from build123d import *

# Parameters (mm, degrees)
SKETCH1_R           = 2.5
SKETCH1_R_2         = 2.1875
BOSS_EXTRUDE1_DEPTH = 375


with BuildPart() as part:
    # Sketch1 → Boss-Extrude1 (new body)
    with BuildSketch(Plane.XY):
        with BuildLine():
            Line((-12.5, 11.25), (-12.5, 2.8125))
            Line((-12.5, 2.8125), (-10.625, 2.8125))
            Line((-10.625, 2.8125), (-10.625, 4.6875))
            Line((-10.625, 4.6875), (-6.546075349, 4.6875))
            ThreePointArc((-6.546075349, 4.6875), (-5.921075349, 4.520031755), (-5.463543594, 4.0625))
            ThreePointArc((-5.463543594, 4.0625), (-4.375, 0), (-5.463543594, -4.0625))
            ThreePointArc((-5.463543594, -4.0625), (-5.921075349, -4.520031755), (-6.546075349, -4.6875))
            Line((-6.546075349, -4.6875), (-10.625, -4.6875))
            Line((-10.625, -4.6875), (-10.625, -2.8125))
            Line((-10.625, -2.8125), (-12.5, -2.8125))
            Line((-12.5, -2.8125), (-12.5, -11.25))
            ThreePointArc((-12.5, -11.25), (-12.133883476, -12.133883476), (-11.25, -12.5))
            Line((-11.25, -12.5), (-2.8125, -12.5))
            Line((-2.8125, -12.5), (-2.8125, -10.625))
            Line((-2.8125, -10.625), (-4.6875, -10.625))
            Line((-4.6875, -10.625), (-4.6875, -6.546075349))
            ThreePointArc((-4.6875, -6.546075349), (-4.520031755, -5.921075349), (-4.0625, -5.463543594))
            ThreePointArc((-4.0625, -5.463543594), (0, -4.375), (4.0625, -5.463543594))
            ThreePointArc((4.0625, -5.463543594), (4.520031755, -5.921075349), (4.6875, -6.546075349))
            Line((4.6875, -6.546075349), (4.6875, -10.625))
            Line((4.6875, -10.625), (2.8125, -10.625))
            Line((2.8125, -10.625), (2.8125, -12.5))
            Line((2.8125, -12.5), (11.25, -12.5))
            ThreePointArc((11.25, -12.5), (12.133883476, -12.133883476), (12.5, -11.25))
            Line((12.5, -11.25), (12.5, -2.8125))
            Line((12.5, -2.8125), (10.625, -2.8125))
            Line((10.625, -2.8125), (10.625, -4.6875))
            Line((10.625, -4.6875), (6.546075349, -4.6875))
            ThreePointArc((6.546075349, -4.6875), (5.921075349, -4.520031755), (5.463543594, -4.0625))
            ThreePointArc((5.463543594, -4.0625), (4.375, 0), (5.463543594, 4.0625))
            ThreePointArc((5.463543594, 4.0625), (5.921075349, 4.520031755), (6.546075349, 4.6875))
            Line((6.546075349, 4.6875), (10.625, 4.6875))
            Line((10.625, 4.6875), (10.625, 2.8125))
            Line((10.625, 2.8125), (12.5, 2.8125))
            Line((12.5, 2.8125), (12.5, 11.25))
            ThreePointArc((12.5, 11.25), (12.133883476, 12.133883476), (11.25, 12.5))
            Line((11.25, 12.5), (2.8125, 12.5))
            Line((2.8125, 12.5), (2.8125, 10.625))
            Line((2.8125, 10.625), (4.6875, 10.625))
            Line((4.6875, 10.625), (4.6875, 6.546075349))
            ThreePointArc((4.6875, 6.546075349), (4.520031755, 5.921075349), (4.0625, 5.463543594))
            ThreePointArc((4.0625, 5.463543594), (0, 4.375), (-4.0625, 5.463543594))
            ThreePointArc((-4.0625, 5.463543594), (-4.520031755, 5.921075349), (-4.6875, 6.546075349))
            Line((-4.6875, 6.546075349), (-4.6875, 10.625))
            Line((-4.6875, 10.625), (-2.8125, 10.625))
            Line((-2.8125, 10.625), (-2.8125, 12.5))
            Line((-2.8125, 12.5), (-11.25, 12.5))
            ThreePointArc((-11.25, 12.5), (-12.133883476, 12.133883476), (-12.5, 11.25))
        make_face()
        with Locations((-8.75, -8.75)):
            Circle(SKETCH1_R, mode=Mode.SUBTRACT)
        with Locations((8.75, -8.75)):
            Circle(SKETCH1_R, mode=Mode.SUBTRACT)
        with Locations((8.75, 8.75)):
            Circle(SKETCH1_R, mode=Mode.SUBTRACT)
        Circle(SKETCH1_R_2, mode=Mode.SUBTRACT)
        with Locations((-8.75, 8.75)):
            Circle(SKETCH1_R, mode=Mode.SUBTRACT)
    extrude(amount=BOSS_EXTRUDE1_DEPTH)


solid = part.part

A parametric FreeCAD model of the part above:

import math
import FreeCAD as App
import Part
import Sketcher

doc = App.newDocument("Part")
body = doc.addObject("PartDesign::Body", "Body")

sketch1 = body.newObject("Sketcher::SketchObject", "Sketch")
sketch1.AttachmentSupport = (doc.getObject("XY_Plane"), [""])
sketch1.MapMode = "FlatFace"
sketch1.addGeometry([
    Part.LineSegment(App.Vector(-12.5, 11.25, 0), App.Vector(-12.5, 2.8125, 0)),
    Part.LineSegment(App.Vector(-12.5, 2.8125, 0), App.Vector(-10.625, 2.8125, 0)),
    Part.LineSegment(App.Vector(-10.625, 2.8125, 0), App.Vector(-10.625, 4.6875, 0)),
    Part.LineSegment(App.Vector(-10.625, 4.6875, 0), App.Vector(-6.546075, 4.6875, 0)),
    Part.ArcOfCircle(Part.Circle(App.Vector(-6.546075, 3.4375, 0), App.Vector(0, 0, 1), 1.25), math.radians(30), math.radians(90)),
    Part.ArcOfCircle(Part.Circle(App.Vector(-12.5, 0, 0), App.Vector(0, 0, 1), 8.125), math.radians(-30), math.radians(30)),
    Part.ArcOfCircle(Part.Circle(App.Vector(-6.546075, -3.4375, 0), App.Vector(0, 0, 1), 1.25), math.radians(-90), math.radians(-30)),
    Part.LineSegment(App.Vector(-6.546075, -4.6875, 0), App.Vector(-10.625, -4.6875, 0)),
    Part.LineSegment(App.Vector(-10.625, -4.6875, 0), App.Vector(-10.625, -2.8125, 0)),
    Part.LineSegment(App.Vector(-10.625, -2.8125, 0), App.Vector(-12.5, -2.8125, 0)),
    Part.LineSegment(App.Vector(-12.5, -2.8125, 0), App.Vector(-12.5, -11.25, 0)),
    Part.ArcOfCircle(Part.Circle(App.Vector(-11.25, -11.25, 0), App.Vector(0, 0, 1), 1.25), math.radians(-180), math.radians(-90)),
    Part.LineSegment(App.Vector(-11.25, -12.5, 0), App.Vector(-2.8125, -12.5, 0)),
    Part.LineSegment(App.Vector(-2.8125, -12.5, 0), App.Vector(-2.8125, -10.625, 0)),
    Part.LineSegment(App.Vector(-2.8125, -10.625, 0), App.Vector(-4.6875, -10.625, 0)),
    Part.LineSegment(App.Vector(-4.6875, -10.625, 0), App.Vector(-4.6875, -6.546075, 0)),
    Part.ArcOfCircle(Part.Circle(App.Vector(-3.4375, -6.546075, 0), App.Vector(0, 0, 1), 1.25), math.radians(120), math.radians(180)),
    Part.ArcOfCircle(Part.Circle(App.Vector(0, -12.5, 0), App.Vector(0, 0, 1), 8.125), math.radians(60), math.radians(120)),
    Part.ArcOfCircle(Part.Circle(App.Vector(3.4375, -6.546075, 0), App.Vector(0, 0, 1), 1.25), math.radians(0), math.radians(60)),
    Part.LineSegment(App.Vector(4.6875, -6.546075, 0), App.Vector(4.6875, -10.625, 0)),
    Part.LineSegment(App.Vector(4.6875, -10.625, 0), App.Vector(2.8125, -10.625, 0)),
    Part.LineSegment(App.Vector(2.8125, -10.625, 0), App.Vector(2.8125, -12.5, 0)),
    Part.LineSegment(App.Vector(2.8125, -12.5, 0), App.Vector(11.25, -12.5, 0)),
    Part.ArcOfCircle(Part.Circle(App.Vector(11.25, -11.25, 0), App.Vector(0, 0, 1), 1.25), math.radians(-90), math.radians(0)),
    Part.LineSegment(App.Vector(12.5, -11.25, 0), App.Vector(12.5, -2.8125, 0)),
    Part.LineSegment(App.Vector(12.5, -2.8125, 0), App.Vector(10.625, -2.8125, 0)),
    Part.LineSegment(App.Vector(10.625, -2.8125, 0), App.Vector(10.625, -4.6875, 0)),
    Part.LineSegment(App.Vector(10.625, -4.6875, 0), App.Vector(6.546075, -4.6875, 0)),
    Part.ArcOfCircle(Part.Circle(App.Vector(6.546075, -3.4375, 0), App.Vector(0, 0, 1), 1.25), math.radians(-150), math.radians(-90)),
    Part.ArcOfCircle(Part.Circle(App.Vector(12.5, 0, 0), App.Vector(0, 0, 1), 8.125), math.radians(150), math.radians(210)),
    Part.ArcOfCircle(Part.Circle(App.Vector(6.546075, 3.4375, 0), App.Vector(0, 0, 1), 1.25), math.radians(90), math.radians(150)),
    Part.LineSegment(App.Vector(6.546075, 4.6875, 0), App.Vector(10.625, 4.6875, 0)),
    Part.LineSegment(App.Vector(10.625, 4.6875, 0), App.Vector(10.625, 2.8125, 0)),
    Part.LineSegment(App.Vector(10.625, 2.8125, 0), App.Vector(12.5, 2.8125, 0)),
    Part.LineSegment(App.Vector(12.5, 2.8125, 0), App.Vector(12.5, 11.25, 0)),
    Part.ArcOfCircle(Part.Circle(App.Vector(11.25, 11.25, 0), App.Vector(0, 0, 1), 1.25), math.radians(0), math.radians(90)),
    Part.LineSegment(App.Vector(11.25, 12.5, 0), App.Vector(2.8125, 12.5, 0)),
    Part.LineSegment(App.Vector(2.8125, 12.5, 0), App.Vector(2.8125, 10.625, 0)),
    Part.LineSegment(App.Vector(2.8125, 10.625, 0), App.Vector(4.6875, 10.625, 0)),
    Part.LineSegment(App.Vector(4.6875, 10.625, 0), App.Vector(4.6875, 6.546075, 0)),
    Part.ArcOfCircle(Part.Circle(App.Vector(3.4375, 6.546075, 0), App.Vector(0, 0, 1), 1.25), math.radians(-60), math.radians(0)),
    Part.ArcOfCircle(Part.Circle(App.Vector(0, 12.5, 0), App.Vector(0, 0, 1), 8.125), math.radians(-120), math.radians(-60)),
    Part.ArcOfCircle(Part.Circle(App.Vector(-3.4375, 6.546075, 0), App.Vector(0, 0, 1), 1.25), math.radians(180), math.radians(240)),
    Part.LineSegment(App.Vector(-4.6875, 6.546075, 0), App.Vector(-4.6875, 10.625, 0)),
    Part.LineSegment(App.Vector(-4.6875, 10.625, 0), App.Vector(-2.8125, 10.625, 0)),
    Part.LineSegment(App.Vector(-2.8125, 10.625, 0), App.Vector(-2.8125, 12.5, 0)),
    Part.LineSegment(App.Vector(-2.8125, 12.5, 0), App.Vector(-11.25, 12.5, 0)),
    Part.ArcOfCircle(Part.Circle(App.Vector(-11.25, 11.25, 0), App.Vector(0, 0, 1), 1.25), math.radians(90), math.radians(180)),
    Part.Circle(App.Vector(-8.75, -8.75, 0), App.Vector(0, 0, 1), 2.5),
    Part.Circle(App.Vector(8.75, -8.75, 0), App.Vector(0, 0, 1), 2.5),
    Part.Circle(App.Vector(-8.75, 8.75, 0), App.Vector(0, 0, 1), 2.5),
    Part.Circle(App.Vector(0, 0, 0), App.Vector(0, 0, 1), 2.1875),
    Part.Circle(App.Vector(8.75, 8.75, 0), App.Vector(0, 0, 1), 2.5),
], False)
sketch1.addConstraint([
    Sketcher.Constraint("Coincident", 0, 2, 1, 1),
    Sketcher.Constraint("Coincident", 1, 2, 2, 1),
    Sketcher.Constraint("Coincident", 2, 2, 3, 1),
    Sketcher.Constraint("Tangent", 3, 2, 4, 2),
    Sketcher.Constraint("Tangent", 4, 1, 5, 2),
    Sketcher.Constraint("Tangent", 5, 1, 6, 2),
    Sketcher.Constraint("Tangent", 6, 1, 7, 1),
    Sketcher.Constraint("Coincident", 7, 2, 8, 1),
    Sketcher.Constraint("Coincident", 8, 2, 9, 1),
    Sketcher.Constraint("Coincident", 9, 2, 10, 1),
    Sketcher.Constraint("Tangent", 10, 2, 11, 1),
    Sketcher.Constraint("Tangent", 11, 2, 12, 1),
    Sketcher.Constraint("Coincident", 12, 2, 13, 1),
    Sketcher.Constraint("Coincident", 13, 2, 14, 1),
    Sketcher.Constraint("Coincident", 14, 2, 15, 1),
    Sketcher.Constraint("Tangent", 15, 2, 16, 2),
    Sketcher.Constraint("Tangent", 16, 1, 17, 2),
    Sketcher.Constraint("Tangent", 17, 1, 18, 2),
    Sketcher.Constraint("Tangent", 18, 1, 19, 1),
    Sketcher.Constraint("Coincident", 19, 2, 20, 1),
    Sketcher.Constraint("Coincident", 20, 2, 21, 1),
    Sketcher.Constraint("Coincident", 21, 2, 22, 1),
    Sketcher.Constraint("Tangent", 22, 2, 23, 1),
    Sketcher.Constraint("Tangent", 23, 2, 24, 1),
    Sketcher.Constraint("Coincident", 24, 2, 25, 1),
    Sketcher.Constraint("Coincident", 25, 2, 26, 1),
    Sketcher.Constraint("Coincident", 26, 2, 27, 1),
    Sketcher.Constraint("Tangent", 27, 2, 28, 2),
    Sketcher.Constraint("Tangent", 28, 1, 29, 2),
    Sketcher.Constraint("Tangent", 29, 1, 30, 2),
    Sketcher.Constraint("Tangent", 30, 1, 31, 1),
    Sketcher.Constraint("Coincident", 31, 2, 32, 1),
    Sketcher.Constraint("Coincident", 32, 2, 33, 1),
    Sketcher.Constraint("Coincident", 33, 2, 34, 1),
    Sketcher.Constraint("Tangent", 34, 2, 35, 1),
    Sketcher.Constraint("Tangent", 35, 2, 36, 1),
    Sketcher.Constraint("Coincident", 36, 2, 37, 1),
    Sketcher.Constraint("Coincident", 37, 2, 38, 1),
    Sketcher.Constraint("Coincident", 38, 2, 39, 1),
    Sketcher.Constraint("Tangent", 39, 2, 40, 2),
    Sketcher.Constraint("Tangent", 40, 1, 41, 2),
    Sketcher.Constraint("Tangent", 41, 1, 42, 2),
    Sketcher.Constraint("Tangent", 42, 1, 43, 1),
    Sketcher.Constraint("Coincident", 43, 2, 44, 1),
    Sketcher.Constraint("Coincident", 44, 2, 45, 1),
    Sketcher.Constraint("Coincident", 45, 2, 46, 1),
    Sketcher.Constraint("Tangent", 46, 2, 47, 1),
    Sketcher.Constraint("Tangent", 47, 2, 0, 1),
    Sketcher.Constraint("Vertical", 0),
    Sketcher.Constraint("Horizontal", 1),
    Sketcher.Constraint("Vertical", 2),
    Sketcher.Constraint("Horizontal", 3),
    Sketcher.Constraint("Horizontal", 7),
    Sketcher.Constraint("Vertical", 8),
    Sketcher.Constraint("Horizontal", 9),
    Sketcher.Constraint("Vertical", 10),
    Sketcher.Constraint("Horizontal", 12),
    Sketcher.Constraint("Vertical", 13),
    Sketcher.Constraint("Horizontal", 14),
    Sketcher.Constraint("Vertical", 15),
    Sketcher.Constraint("Vertical", 19),
    Sketcher.Constraint("Horizontal", 20),
    Sketcher.Constraint("Vertical", 21),
    Sketcher.Constraint("Horizontal", 22),
    Sketcher.Constraint("Vertical", 24),
    Sketcher.Constraint("Horizontal", 25),
    Sketcher.Constraint("Vertical", 26),
    Sketcher.Constraint("Horizontal", 27),
    Sketcher.Constraint("Horizontal", 31),
    Sketcher.Constraint("Vertical", 32),
    Sketcher.Constraint("Horizontal", 33),
    Sketcher.Constraint("Vertical", 34),
    Sketcher.Constraint("Horizontal", 36),
    Sketcher.Constraint("Vertical", 37),
    Sketcher.Constraint("Horizontal", 38),
    Sketcher.Constraint("Vertical", 39),
    Sketcher.Constraint("Vertical", 43),
    Sketcher.Constraint("Horizontal", 44),
    Sketcher.Constraint("Vertical", 45),
    Sketcher.Constraint("Horizontal", 46),
    Sketcher.Constraint("Coincident", 51, 3, -1, 1),
    Sketcher.Constraint("Equal", 4, 6),
    Sketcher.Constraint("Equal", 6, 11),
    Sketcher.Constraint("Equal", 11, 16),
    Sketcher.Constraint("Equal", 5, 17),
    Sketcher.Constraint("Equal", 16, 18),
    Sketcher.Constraint("Equal", 18, 23),
    Sketcher.Constraint("Equal", 23, 28),
    Sketcher.Constraint("Equal", 17, 29),
    Sketcher.Constraint("Equal", 28, 30),
    Sketcher.Constraint("Equal", 30, 35),
    Sketcher.Constraint("Equal", 35, 40),
    Sketcher.Constraint("Equal", 29, 41),
    Sketcher.Constraint("Equal", 40, 42),
    Sketcher.Constraint("Equal", 42, 47),
    Sketcher.Constraint("Equal", 48, 49),
    Sketcher.Constraint("Equal", 49, 50),
    Sketcher.Constraint("Equal", 50, 52),
    Sketcher.Constraint("Symmetric", 4, 3, 28, 3, -1, 1),
    Sketcher.Constraint("Symmetric", 6, 3, 30, 3, -1, 1),
    Sketcher.Constraint("Symmetric", 11, 3, 35, 3, -1, 1),
    Sketcher.Constraint("Symmetric", 16, 3, 40, 3, -1, 1),
    Sketcher.Constraint("Symmetric", 18, 3, 42, 3, -1, 1),
    Sketcher.Constraint("Symmetric", 23, 3, 47, 3, -1, 1),
    Sketcher.Constraint("Symmetric", 49, 3, 50, 3, -1, 1),
    Sketcher.Constraint("Symmetric", 48, 3, 52, 3, -1, 1),
    Sketcher.Constraint("Symmetric", 1, 2, 25, 2, -1, 1),
    Sketcher.Constraint("Symmetric", 8, 2, 32, 2, -1, 1),
    Sketcher.Constraint("Symmetric", 13, 2, 37, 2, -1, 1),
    Sketcher.Constraint("Symmetric", 20, 2, 44, 2, -1, 1),
    Sketcher.Constraint("Symmetric", 16, 3, 18, 3, -2),
    Sketcher.Constraint("Symmetric", 11, 3, 23, 3, -2),
    Sketcher.Constraint("Symmetric", 6, 3, 28, 3, -2),
    Sketcher.Constraint("Symmetric", 48, 3, 49, 3, -2),
    Sketcher.Constraint("Symmetric", 13, 2, 20, 2, -2),
    Sketcher.Constraint("Symmetric", 8, 2, 25, 2, -2),
    Sketcher.Constraint("Horizontal", 17, 3, 11, 2),
    Sketcher.Constraint("Vertical", 5, 3, 0, 2),
    Sketcher.Constraint("Equal", 9, 14),
    Sketcher.Constraint("Equal", 46, 0),
    Sketcher.Constraint("Equal", 44, 2),
    Sketcher.Constraint("Equal", 8, 13),
    Sketcher.Constraint("Equal", 31, 15),
    Sketcher.Constraint("Diameter", 48, 5.0),
    Sketcher.Constraint("Radius", 4, 1.25),
    Sketcher.Constraint("Diameter", 51, 4.375),
    Sketcher.Constraint("Radius", 5, 8.125),
    Sketcher.Constraint("DistanceX", 5, 3, -1, 1, 12.5),
    Sketcher.Constraint("DistanceX", 1, 1, 1, 2, 1.875),
    Sketcher.Constraint("DistanceX", 48, 3, -1, 1, 8.75),
    Sketcher.Constraint("DistanceY", 48, 3, -1, 1, 8.75),
    Sketcher.Constraint("DistanceX", 12, 1, 12, 2, 8.4375),
])
pad1 = body.newObject("PartDesign::Pad", "Pad")
pad1.Profile = sketch1
pad1.Length = 375

doc.recompute()
